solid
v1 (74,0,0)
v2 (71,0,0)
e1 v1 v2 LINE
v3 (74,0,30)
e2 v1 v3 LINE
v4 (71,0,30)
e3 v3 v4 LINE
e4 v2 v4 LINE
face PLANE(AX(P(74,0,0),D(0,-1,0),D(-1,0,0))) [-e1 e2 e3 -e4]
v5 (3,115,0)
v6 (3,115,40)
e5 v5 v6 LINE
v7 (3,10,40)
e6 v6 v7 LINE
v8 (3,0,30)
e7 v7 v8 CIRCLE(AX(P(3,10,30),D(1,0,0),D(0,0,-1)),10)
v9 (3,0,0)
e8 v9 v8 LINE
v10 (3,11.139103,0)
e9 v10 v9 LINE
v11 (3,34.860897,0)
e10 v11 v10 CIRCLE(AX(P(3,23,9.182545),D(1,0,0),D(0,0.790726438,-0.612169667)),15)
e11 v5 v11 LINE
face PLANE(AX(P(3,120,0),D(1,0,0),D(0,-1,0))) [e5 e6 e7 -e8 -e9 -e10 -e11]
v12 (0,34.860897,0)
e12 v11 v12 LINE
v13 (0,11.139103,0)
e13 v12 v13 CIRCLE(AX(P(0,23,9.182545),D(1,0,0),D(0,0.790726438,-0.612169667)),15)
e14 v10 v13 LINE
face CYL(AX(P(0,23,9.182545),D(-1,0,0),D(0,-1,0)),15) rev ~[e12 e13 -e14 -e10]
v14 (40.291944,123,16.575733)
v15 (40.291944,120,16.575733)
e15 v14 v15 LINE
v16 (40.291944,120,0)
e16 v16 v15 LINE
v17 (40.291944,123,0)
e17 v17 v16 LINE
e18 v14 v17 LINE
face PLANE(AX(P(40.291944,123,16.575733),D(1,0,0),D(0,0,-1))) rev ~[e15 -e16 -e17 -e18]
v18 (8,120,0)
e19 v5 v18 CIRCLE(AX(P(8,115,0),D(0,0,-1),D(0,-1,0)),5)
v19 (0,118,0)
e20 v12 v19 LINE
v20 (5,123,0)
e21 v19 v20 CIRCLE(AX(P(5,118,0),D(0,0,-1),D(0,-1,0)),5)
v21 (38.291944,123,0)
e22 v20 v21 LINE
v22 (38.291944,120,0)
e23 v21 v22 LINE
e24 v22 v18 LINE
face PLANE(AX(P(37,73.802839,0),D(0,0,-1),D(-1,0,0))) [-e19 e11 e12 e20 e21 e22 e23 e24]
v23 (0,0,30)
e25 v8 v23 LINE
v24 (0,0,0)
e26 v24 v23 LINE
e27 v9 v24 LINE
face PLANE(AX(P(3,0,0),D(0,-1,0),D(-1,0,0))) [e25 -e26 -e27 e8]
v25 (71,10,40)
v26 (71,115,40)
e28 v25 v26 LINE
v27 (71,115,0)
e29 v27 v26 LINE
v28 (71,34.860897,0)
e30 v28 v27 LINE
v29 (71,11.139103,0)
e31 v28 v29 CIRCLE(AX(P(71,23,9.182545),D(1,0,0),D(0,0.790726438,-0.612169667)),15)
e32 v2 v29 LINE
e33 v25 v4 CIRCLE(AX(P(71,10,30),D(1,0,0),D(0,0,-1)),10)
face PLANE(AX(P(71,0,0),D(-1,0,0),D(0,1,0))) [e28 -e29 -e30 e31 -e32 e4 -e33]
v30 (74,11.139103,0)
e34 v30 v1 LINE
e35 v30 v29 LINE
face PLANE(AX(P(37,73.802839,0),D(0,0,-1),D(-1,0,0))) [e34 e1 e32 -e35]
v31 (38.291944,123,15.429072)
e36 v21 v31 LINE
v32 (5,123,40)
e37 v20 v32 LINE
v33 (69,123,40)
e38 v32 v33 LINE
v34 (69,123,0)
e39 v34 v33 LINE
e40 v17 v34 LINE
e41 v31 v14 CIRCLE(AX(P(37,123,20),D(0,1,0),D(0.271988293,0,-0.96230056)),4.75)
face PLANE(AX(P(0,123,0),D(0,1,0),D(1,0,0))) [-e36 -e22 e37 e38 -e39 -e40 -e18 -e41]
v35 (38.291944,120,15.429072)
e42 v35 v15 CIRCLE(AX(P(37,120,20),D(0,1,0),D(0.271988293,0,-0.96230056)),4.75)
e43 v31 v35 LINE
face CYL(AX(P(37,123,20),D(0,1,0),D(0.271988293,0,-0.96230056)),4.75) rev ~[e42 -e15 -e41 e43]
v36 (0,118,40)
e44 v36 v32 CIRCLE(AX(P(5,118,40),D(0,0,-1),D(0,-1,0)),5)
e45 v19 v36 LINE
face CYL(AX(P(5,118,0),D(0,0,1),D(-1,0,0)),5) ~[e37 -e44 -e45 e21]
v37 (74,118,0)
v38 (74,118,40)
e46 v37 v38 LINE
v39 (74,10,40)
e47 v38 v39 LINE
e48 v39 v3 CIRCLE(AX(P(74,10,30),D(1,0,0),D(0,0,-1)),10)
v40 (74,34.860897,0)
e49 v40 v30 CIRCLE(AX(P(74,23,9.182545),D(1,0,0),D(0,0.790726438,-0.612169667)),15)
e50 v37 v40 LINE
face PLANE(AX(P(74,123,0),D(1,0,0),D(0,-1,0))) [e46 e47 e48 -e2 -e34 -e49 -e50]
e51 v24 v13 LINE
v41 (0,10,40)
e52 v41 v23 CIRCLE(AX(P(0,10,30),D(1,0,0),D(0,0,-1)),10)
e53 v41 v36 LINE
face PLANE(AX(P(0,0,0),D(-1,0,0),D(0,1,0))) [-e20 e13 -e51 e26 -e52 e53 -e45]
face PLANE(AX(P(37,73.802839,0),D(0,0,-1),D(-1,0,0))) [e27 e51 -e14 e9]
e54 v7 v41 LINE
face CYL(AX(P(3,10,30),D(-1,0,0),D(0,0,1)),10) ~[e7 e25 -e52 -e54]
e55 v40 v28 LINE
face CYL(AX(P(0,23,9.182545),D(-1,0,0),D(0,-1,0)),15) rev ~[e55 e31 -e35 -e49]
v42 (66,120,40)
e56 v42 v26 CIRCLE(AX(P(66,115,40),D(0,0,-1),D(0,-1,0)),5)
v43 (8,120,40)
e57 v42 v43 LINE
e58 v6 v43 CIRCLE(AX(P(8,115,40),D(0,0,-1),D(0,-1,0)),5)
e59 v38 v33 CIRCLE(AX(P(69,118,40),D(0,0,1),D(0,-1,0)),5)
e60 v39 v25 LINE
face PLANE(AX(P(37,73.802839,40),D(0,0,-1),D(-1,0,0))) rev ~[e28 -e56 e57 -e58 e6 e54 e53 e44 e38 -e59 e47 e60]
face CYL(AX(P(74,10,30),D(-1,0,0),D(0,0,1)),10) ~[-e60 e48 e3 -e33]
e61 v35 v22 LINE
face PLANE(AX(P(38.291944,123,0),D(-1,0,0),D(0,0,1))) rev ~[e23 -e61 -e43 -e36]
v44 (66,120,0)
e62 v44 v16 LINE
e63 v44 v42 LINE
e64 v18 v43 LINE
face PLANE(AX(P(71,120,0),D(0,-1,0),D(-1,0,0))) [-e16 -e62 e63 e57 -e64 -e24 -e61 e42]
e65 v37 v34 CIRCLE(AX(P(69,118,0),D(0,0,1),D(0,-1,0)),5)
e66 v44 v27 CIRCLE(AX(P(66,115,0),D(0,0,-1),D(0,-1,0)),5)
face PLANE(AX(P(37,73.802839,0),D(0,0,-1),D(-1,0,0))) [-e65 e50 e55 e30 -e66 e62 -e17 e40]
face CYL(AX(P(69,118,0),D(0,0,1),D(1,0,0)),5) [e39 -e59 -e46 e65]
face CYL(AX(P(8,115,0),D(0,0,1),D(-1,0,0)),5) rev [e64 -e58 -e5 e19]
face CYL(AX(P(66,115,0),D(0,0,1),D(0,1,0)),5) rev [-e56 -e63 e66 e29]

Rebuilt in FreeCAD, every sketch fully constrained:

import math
import FreeCAD as App
import Part
import Sketcher

V = App.Vector


def edges_at(feature, points):
    """Names of the edges that pass closest to the given points."""
    edges = feature.Shape.Edges
    near = lambda p: min(range(len(edges)), key=lambda i: edges[i].distToShape(Part.Vertex(*p))[0])
    return sorted({f"Edge{near(p) + 1}" for p in points})


def add_polygon(sketch, points):
    """Adds a closed chain of lines whose ends are joined by coincident constraints."""
    first, n = sketch.GeometryCount, len(points)
    for a, b in zip(points, points[1:] + points[:1]):
        sketch.addGeometry(Part.LineSegment(App.Vector(*a, 0), App.Vector(*b, 0)), False)
    for i in range(n):
        sketch.addConstraint(Sketcher.Constraint("Coincident", first + i, 2, first + (i + 1) % n, 1))

doc = App.newDocument("Part")
params = doc.addObject("Spreadsheet::Sheet", "Params")
for row, (alias, value) in enumerate([
    ("sketch1_width", "3 mm"),
    ("sketch1_width2", "68 mm"),
    ("sketch1_height", "123 mm"),
    ("sketch1_height2", "120 mm"),
    ("pad1_length", "40 mm"),
    ("sketch2_diameter", "30 mm"),
    ("fillet_radius", "5 mm"),
    ("fillet2_radius", "10 mm"),
    ("sketch3_width", "2 mm"),
    ("sketch3_radius", "4.75 mm"),
    ("pocket2_length", "5 mm"),
], start=1):
    params.set(f"A{row}", alias)
    params.set(f"B{row}", "=" + value)
    params.setAlias(f"B{row}", alias)

body = doc.addObject("PartDesign::Body", "Body")

# Sketch on XY plane
sketch1 = doc.addObject("Sketcher::SketchObject", "Sketch")
body.addObject(sketch1)
sketch1.AttachmentSupport = (doc.XY_Plane, [""])
sketch1.MapMode = "FlatFace"
add_polygon(sketch1, [(0, 123), (0, 0), (3, 0), (3, 120), (71, 120), (71, 0), (74, 0), (74, 123)])  # lines 0-7
sketch1.addConstraint([
    Sketcher.Constraint("Vertical", 0),
    Sketcher.Constraint("Horizontal", 1),
    Sketcher.Constraint("Vertical", 2),
    Sketcher.Constraint("Horizontal", 3),
    Sketcher.Constraint("Vertical", 4),
    Sketcher.Constraint("Horizontal", 5),
    Sketcher.Constraint("Vertical", 6),
    Sketcher.Constraint("Horizontal", 7),
    Sketcher.Constraint("Coincident", 0, 2, -1, 1),
    Sketcher.Constraint("PointOnObject", 4, 2, -1),
    Sketcher.Constraint("Equal", 1, 5),
    Sketcher.Constraint("DistanceX", 1, 1, 1, 2, 3.0),
    Sketcher.Constraint("DistanceX", 3, 1, 3, 2, 68.0),
    Sketcher.Constraint("DistanceY", 0, 2, 0, 1, 123.0),
    Sketcher.Constraint("DistanceY", 2, 1, 2, 2, 120.0),
])
sketch1.setExpression("Constraints[19]", "Params.sketch1_width")
sketch1.setExpression("Constraints[20]", "Params.sketch1_width2")
sketch1.setExpression("Constraints[21]", "Params.sketch1_height")
sketch1.setExpression("Constraints[22]", "Params.sketch1_height2")
pad1 = doc.addObject("PartDesign::Pad", "Pad")
body.addObject(pad1)
pad1.Profile = sketch1
pad1.setExpression("Length", "Params.pad1_length")

# Sketch on YZ plane
sketch2 = doc.addObject("Sketcher::SketchObject", "Sketch001")
body.addObject(sketch2)
sketch2.AttachmentSupport = (doc.YZ_Plane, [""])
sketch2.MapMode = "FlatFace"
sketch2.addGeometry(Part.Circle(V(23, 9, 0), V(0, 0, 1), 15), False)
sketch2.addConstraint([
    Sketcher.Constraint("Diameter", 0, 30.0),
    Sketcher.Constraint("DistanceX", -1, 1, 0, 3, 23.0),
    Sketcher.Constraint("DistanceY", -1, 1, 0, 3, 9.182545),
])
sketch2.setExpression("Constraints[0]", "Params.sketch2_diameter")
pocket1 = doc.addObject("PartDesign::Pocket", "Pocket")
body.addObject(pocket1)
pocket1.Profile = sketch2
pocket1.Type = "ThroughAll"
pocket1.Reversed = True
doc.recompute()

fillet = doc.addObject("PartDesign::Fillet", "Fillet")
body.addObject(fillet)
fillet.Base = (pocket1, edges_at(pocket1, [
    (0, 123, 20),
    (74, 123, 20),
    (71, 120, 20),
    (3, 120, 20),
]))
fillet.setExpression("Radius", "Params.fillet_radius")
doc.recompute()

fillet2 = doc.addObject("PartDesign::Fillet", "Fillet001")
body.addObject(fillet2)
fillet2.Base = (fillet, edges_at(fillet, [(72.5, 0, 40), (1.5, 0, 40)]))
fillet2.setExpression("Radius", "Params.fillet2_radius")

# Sketch on XZ plane
sketch3 = doc.addObject("Sketcher::SketchObject", "Sketch002")
body.addObject(sketch3)
sketch3.AttachmentSupport = (doc.XZ_Plane, [""])
sketch3.MapMode = "FlatFace"
sketch3.AttachmentOffset = App.Placement(V(0, 0, -123), App.Rotation())
sketch3.addGeometry([
    Part.ArcOfCircle(Part.Circle(V(37, 20, 0), V(0, 0, 1), 4.8), math.radians(-46), math.radians(286)),
    Part.LineSegment(V(40.3, 16.6, 0), V(40.3, 0, 0)),
    Part.LineSegment(V(40.3, 0, 0), V(38.3, 0, 0)),
    Part.LineSegment(V(38.3, 0, 0), V(38.3, 15.4, 0)),
], False)
sketch3.addConstraint([
    Sketcher.Constraint("Coincident", 0, 1, 1, 1),
    Sketcher.Constraint("Coincident", 1, 2, 2, 1),
    Sketcher.Constraint("Coincident", 2, 2, 3, 1),
    Sketcher.Constraint("Coincident", 3, 2, 0, 2),
    Sketcher.Constraint("Vertical", 1),
    Sketcher.Constraint("Horizontal", 2),
    Sketcher.Constraint("Vertical", 3),
    Sketcher.Constraint("PointOnObject", 1, 2, -1),
    Sketcher.Constraint("DistanceX", 2, 2, 2, 1, 2.0),
    Sketcher.Constraint("Radius", 0, 4.75),
    Sketcher.Constraint("DistanceX", -1, 1, 0, 3, 37.0),
    Sketcher.Constraint("DistanceY", -1, 1, 0, 3, 20.0),
    Sketcher.Constraint("DistanceY", 1, 2, 1, 1, 16.575733),
])
sketch3.setExpression("Constraints[8]", "Params.sketch3_width")
sketch3.setExpression("Constraints[9]", "Params.sketch3_radius")
pocket2 = doc.addObject("PartDesign::Pocket", "Pocket001")
body.addObject(pocket2)
pocket2.Profile = sketch3
pocket2.setExpression("Length", "Params.pocket2_length")
pocket2.Reversed = True

doc.recompute()
